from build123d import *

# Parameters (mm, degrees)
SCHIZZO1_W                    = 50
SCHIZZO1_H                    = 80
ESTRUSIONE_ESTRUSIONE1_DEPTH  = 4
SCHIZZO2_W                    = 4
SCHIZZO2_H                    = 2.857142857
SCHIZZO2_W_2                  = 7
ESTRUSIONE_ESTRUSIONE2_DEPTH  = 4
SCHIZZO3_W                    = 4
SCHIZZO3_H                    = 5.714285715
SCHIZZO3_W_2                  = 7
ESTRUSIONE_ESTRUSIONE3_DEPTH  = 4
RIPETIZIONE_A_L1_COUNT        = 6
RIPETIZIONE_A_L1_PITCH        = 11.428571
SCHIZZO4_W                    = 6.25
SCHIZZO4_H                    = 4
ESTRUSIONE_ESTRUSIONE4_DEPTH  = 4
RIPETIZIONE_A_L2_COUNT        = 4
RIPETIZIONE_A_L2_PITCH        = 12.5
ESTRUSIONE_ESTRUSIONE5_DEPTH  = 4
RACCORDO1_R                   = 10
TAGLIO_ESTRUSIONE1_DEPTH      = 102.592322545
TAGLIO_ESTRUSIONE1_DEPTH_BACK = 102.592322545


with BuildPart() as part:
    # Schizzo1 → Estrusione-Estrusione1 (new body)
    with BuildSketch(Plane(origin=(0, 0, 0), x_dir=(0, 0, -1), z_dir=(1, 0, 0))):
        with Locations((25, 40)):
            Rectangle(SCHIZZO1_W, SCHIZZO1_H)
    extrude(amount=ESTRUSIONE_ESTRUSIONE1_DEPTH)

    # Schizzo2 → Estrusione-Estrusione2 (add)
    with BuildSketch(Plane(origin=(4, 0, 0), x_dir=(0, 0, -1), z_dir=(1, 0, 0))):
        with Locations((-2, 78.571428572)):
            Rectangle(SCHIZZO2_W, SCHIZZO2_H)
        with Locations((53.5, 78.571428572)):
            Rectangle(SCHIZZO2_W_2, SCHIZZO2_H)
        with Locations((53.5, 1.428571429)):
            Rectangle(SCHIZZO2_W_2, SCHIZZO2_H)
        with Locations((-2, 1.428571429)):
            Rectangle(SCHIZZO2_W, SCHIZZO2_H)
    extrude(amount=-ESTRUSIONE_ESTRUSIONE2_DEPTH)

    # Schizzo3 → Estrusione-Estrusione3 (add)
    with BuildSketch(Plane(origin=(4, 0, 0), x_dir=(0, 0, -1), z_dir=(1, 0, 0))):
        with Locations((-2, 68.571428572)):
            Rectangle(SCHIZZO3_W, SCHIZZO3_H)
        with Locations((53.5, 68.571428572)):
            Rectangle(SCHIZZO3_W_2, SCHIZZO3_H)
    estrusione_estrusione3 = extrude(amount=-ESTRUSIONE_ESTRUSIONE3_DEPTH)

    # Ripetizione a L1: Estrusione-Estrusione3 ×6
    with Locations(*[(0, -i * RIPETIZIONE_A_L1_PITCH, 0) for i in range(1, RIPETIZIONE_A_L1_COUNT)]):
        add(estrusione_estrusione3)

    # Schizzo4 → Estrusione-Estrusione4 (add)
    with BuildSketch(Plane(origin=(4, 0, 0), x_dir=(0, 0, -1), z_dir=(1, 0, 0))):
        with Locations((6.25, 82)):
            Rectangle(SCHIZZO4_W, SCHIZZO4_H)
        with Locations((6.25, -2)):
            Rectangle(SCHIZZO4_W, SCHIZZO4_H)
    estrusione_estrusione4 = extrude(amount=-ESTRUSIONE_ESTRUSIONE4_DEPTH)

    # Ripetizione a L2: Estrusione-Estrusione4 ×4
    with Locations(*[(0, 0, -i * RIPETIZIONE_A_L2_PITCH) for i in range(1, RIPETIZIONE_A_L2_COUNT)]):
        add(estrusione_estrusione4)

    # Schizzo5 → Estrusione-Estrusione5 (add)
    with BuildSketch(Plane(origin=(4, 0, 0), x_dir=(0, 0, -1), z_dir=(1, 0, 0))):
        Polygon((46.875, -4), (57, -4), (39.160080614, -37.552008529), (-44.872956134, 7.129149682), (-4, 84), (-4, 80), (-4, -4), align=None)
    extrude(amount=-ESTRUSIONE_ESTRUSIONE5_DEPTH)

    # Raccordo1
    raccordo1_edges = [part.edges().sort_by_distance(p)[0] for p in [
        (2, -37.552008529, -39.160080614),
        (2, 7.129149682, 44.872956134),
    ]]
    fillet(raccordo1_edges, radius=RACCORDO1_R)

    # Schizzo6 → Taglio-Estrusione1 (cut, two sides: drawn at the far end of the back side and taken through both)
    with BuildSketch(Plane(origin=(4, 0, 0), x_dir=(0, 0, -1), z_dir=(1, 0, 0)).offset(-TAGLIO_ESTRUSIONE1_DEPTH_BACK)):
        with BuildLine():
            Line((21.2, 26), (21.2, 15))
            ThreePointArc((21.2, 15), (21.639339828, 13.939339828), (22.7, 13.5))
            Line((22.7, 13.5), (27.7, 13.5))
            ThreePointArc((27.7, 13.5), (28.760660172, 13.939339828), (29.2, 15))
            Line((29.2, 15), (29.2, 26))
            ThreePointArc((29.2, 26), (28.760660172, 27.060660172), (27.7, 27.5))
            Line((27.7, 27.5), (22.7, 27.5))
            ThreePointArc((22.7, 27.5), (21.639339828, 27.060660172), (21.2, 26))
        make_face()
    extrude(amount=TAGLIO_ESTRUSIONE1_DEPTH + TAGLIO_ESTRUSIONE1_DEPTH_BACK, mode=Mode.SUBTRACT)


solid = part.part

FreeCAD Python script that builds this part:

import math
import FreeCAD as App
import Part
import Sketcher

V = App.Vector
Q = App.Units.Quantity


def edges_at(feature, points):
    """Names of the edges that pass closest to the given points."""
    edges = feature.Shape.Edges
    near = lambda p: min(range(len(edges)), key=lambda i: edges[i].distToShape(Part.Vertex(*p))[0])
    return sorted({f"Edge{near(p) + 1}" for p in points})


def add_polygon(sketch, points):
    """Adds a closed chain of lines whose ends are joined by coincident constraints."""
    first, n = sketch.GeometryCount, len(points)
    for a, b in zip(points, points[1:] + points[:1]):
        sketch.addGeometry(Part.LineSegment(App.Vector(*a, 0), App.Vector(*b, 0)), False)
    for i in range(n):
        sketch.addConstraint(Sketcher.Constraint("Coincident", first + i, 2, first + (i + 1) % n, 1))

doc = App.newDocument("Part")
body = doc.addObject("PartDesign::Body", "Body")

# Sketch on YZ plane
sketch1 = body.newObject("Sketcher::SketchObject", "Sketch")
sketch1.AttachmentSupport = (doc.getObject("YZ_Plane"), [""])
sketch1.MapMode = "FlatFace"
add_polygon(sketch1, [(80, 0), (0, 0), (0, -50), (80, -50)])  # lines 0-3
sketch1.addConstraint(Sketcher.Constraint("Horizontal", 0))
sketch1.addConstraint(Sketcher.Constraint("Vertical", 1))
sketch1.addConstraint(Sketcher.Constraint("Horizontal", 2))
sketch1.addConstraint(Sketcher.Constraint("Vertical", 3))
sketch1.addConstraint(Sketcher.Constraint("Coincident", 0, 2, -1, 1))
sketch1.addConstraint(Sketcher.Constraint("DistanceX", 0, 2, 0, 1, 80.0))
sketch1.addConstraint(Sketcher.Constraint("DistanceY", 1, 2, 1, 1, 50.0))
pad1 = body.newObject("PartDesign::Pad", "Pad")
pad1.Profile = sketch1
pad1.Length = 4

# Sketch on YZ plane
sketch2 = body.newObject("Sketcher::SketchObject", "Sketch001")
sketch2.AttachmentSupport = (doc.getObject("YZ_Plane"), [""])
sketch2.MapMode = "FlatFace"
sketch2.AttachmentOffset = App.Placement(V(0, 0, 4), App.Rotation())
add_polygon(sketch2, [(80, 4), (77.142857, 4), (77.142857, 0), (80, 0)])  # lines 0-3
add_polygon(sketch2, [(80, -50), (77.142857, -50), (77.142857, -57), (80, -57)])  # lines 4-7
add_polygon(sketch2, [(2.857143, -50), (0, -50), (0, -57), (2.857143, -57)])  # lines 8-11
add_polygon(sketch2, [(2.857143, 4), (0, 4), (0, 0), (2.857143, 0)])  # lines 12-15
sketch2.addConstraint(Sketcher.Constraint("Horizontal", 0))
sketch2.addConstraint(Sketcher.Constraint("Vertical", 1))
sketch2.addConstraint(Sketcher.Constraint("Horizontal", 2))
sketch2.addConstraint(Sketcher.Constraint("Vertical", 3))
sketch2.addConstraint(Sketcher.Constraint("Horizontal", 4))
sketch2.addConstraint(Sketcher.Constraint("Vertical", 5))
sketch2.addConstraint(Sketcher.Constraint("Horizontal", 6))
sketch2.addConstraint(Sketcher.Constraint("Vertical", 7))
sketch2.addConstraint(Sketcher.Constraint("Horizontal", 8))
sketch2.addConstraint(Sketcher.Constraint("Vertical", 9))
sketch2.addConstraint(Sketcher.Constraint("Horizontal", 10))
sketch2.addConstraint(Sketcher.Constraint("Vertical", 11))
sketch2.addConstraint(Sketcher.Constraint("Horizontal", 12))
sketch2.addConstraint(Sketcher.Constraint("Vertical", 13))
sketch2.addConstraint(Sketcher.Constraint("Horizontal", 14))
sketch2.addConstraint(Sketcher.Constraint("Vertical", 15))
sketch2.addConstraint(Sketcher.Constraint("Coincident", 13, 2, -1, 1))
sketch2.addConstraint(Sketcher.Constraint("PointOnObject", 1, 2, -1))
sketch2.addConstraint(Sketcher.Constraint("PointOnObject", 8, 2, -2))
sketch2.addConstraint(Sketcher.Constraint("Horizontal", 7, 2, 8, 2))
sketch2.addConstraint(Sketcher.Constraint("Horizontal", 6, 2, 9, 2))
sketch2.addConstraint(Sketcher.Constraint("Horizontal", 3, 2, 12, 2))
sketch2.addConstraint(Sketcher.Constraint("Vertical", 1, 2, 4, 2))
sketch2.addConstraint(Sketcher.Constraint("Vertical", 3, 2, 6, 2))
sketch2.addConstraint(Sketcher.Constraint("Vertical", 11, 2, 14, 2))
sketch2.addConstraint(Sketcher.Constraint("Equal", 6, 8))
sketch2.addConstraint(Sketcher.Constraint("DistanceY", 1, 2, 1, 1, 4.0))
sketch2.addConstraint(Sketcher.Constraint("DistanceY", 5, 2, 5, 1, 7.0))
sketch2.addConstraint(Sketcher.Constraint("DistanceX", -1, 1, 2, 2, 80.0))
sketch2.addConstraint(Sketcher.Constraint("DistanceY", 4, 2, -1, 1, 50.0))
sketch2.addConstraint(Sketcher.Constraint("DistanceX", 0, 2, 0, 1, 2.857143))
pad2 = body.newObject("PartDesign::Pad", "Pad001")
pad2.Profile = sketch2
pad2.Length = 4
pad2.Reversed = True

# Sketch on YZ plane
sketch3 = body.newObject("Sketcher::SketchObject", "Sketch002")
sketch3.AttachmentSupport = (doc.getObject("YZ_Plane"), [""])
sketch3.MapMode = "FlatFace"
sketch3.AttachmentOffset = App.Placement(V(0, 0, 4), App.Rotation())
add_polygon(sketch3, [(71.428571, 4), (65.714286, 4), (65.714286, 0), (71.428571, 0)])  # lines 0-3
add_polygon(sketch3, [(71.428571, -50), (65.714286, -50), (65.714286, -57), (71.428571, -57)])  # lines 4-7
sketch3.addConstraint(Sketcher.Constraint("Horizontal", 0))
sketch3.addConstraint(Sketcher.Constraint("Vertical", 1))
sketch3.addConstraint(Sketcher.Constraint("Horizontal", 2))
sketch3.addConstraint(Sketcher.Constraint("Vertical", 3))
sketch3.addConstraint(Sketcher.Constraint("Horizontal", 4))
sketch3.addConstraint(Sketcher.Constraint("Vertical", 5))
sketch3.addConstraint(Sketcher.Constraint("Horizontal", 6))
sketch3.addConstraint(Sketcher.Constraint("Vertical", 7))
sketch3.addConstraint(Sketcher.Constraint("PointOnObject", 1, 2, -1))
sketch3.addConstraint(Sketcher.Constraint("Vertical", 1, 2, 4, 2))
sketch3.addConstraint(Sketcher.Constraint("Vertical", 3, 2, 6, 2))
sketch3.addConstraint(Sketcher.Constraint("DistanceY", 1, 2, 1, 1, 4.0))
sketch3.addConstraint(Sketcher.Constraint("DistanceY", 5, 2, 5, 1, 7.0))
sketch3.addConstraint(Sketcher.Constraint("DistanceY", 4, 2, -1, 1, 50.0))
sketch3.addConstraint(Sketcher.Constraint("DistanceX", 0, 2, 0, 1, 5.714286))
sketch3.addConstraint(Sketcher.Constraint("DistanceX", -1, 1, 2, 2, 71.428571))
pad3 = body.newObject("PartDesign::Pad", "Pad002")
pad3.Profile = sketch3
pad3.Length = 4
pad3.Reversed = True
doc.recompute()

linearpattern = body.newObject("PartDesign::LinearPattern", "LinearPattern")
linearpattern.Originals = [pad3]
linearpattern.Direction = (doc.getObject("Y_Axis"), [""])
linearpattern.Mode = "offset"
linearpattern.Offset = 11.428571
linearpattern.Occurrences = 6
linearpattern.Reversed = True
body.Tip = linearpattern

# Sketch on YZ plane
sketch4 = body.newObject("Sketcher::SketchObject", "Sketch003")
sketch4.AttachmentSupport = (doc.getObject("YZ_Plane"), [""])
sketch4.MapMode = "FlatFace"
sketch4.AttachmentOffset = App.Placement(V(0, 0, 4), App.Rotation())
add_polygon(sketch4, [(84, -3.125), (80, -3.125), (80, -9.375), (84, -9.375)])  # lines 0-3
add_polygon(sketch4, [(0, -3.125), (-4, -3.125), (-4, -9.375), (0, -9.375)])  # lines 4-7
sketch4.addConstraint(Sketcher.Constraint("Horizontal", 0))
sketch4.addConstraint(Sketcher.Constraint("Vertical", 1))
sketch4.addConstraint(Sketcher.Constraint("Horizontal", 2))
sketch4.addConstraint(Sketcher.Constraint("Vertical", 3))
sketch4.addConstraint(Sketcher.Constraint("Horizontal", 4))
sketch4.addConstraint(Sketcher.Constraint("Vertical", 5))
sketch4.addConstraint(Sketcher.Constraint("Horizontal", 6))
sketch4.addConstraint(Sketcher.Constraint("Vertical", 7))
sketch4.addConstraint(Sketcher.Constraint("PointOnObject", 6, 2, -2))
sketch4.addConstraint(Sketcher.Constraint("Horizontal", 3, 2, 4, 2))
sketch4.addConstraint(Sketcher.Constraint("Horizontal", 2, 2, 5, 2))
sketch4.addConstraint(Sketcher.Constraint("Equal", 2, 4))
sketch4.addConstraint(Sketcher.Constraint("DistanceX", 0, 2, 0, 1, 4.0))
sketch4.addConstraint(Sketcher.Constraint("DistanceX", -1, 1, 0, 2, 80.0))
sketch4.addConstraint(Sketcher.Constraint("DistanceY", 1, 2, 1, 1, 6.25))
sketch4.addConstraint(Sketcher.Constraint("DistanceY", 0, 2, -1, 1, 3.125))
pad4 = body.newObject("PartDesign::Pad", "Pad003")
pad4.Profile = sketch4
pad4.Length = 4
pad4.Reversed = True
doc.recompute()

linearpattern2 = body.newObject("PartDesign::LinearPattern", "LinearPattern001")
linearpattern2.Originals = [pad4]
linearpattern2.Direction = (doc.getObject("Z_Axis"), [""])
linearpattern2.Mode = "offset"
linearpattern2.Offset = 12.5
linearpattern2.Occurrences = 4
linearpattern2.Reversed = True
body.Tip = linearpattern2

# Sketch on YZ plane
sketch5 = body.newObject("Sketcher::SketchObject", "Sketch004")
sketch5.AttachmentSupport = (doc.getObject("YZ_Plane"), [""])
sketch5.MapMode = "FlatFace"
sketch5.AttachmentOffset = App.Placement(V(0, 0, 4), App.Rotation())
add_polygon(sketch5, [(-4, -57), (-4, 4), (84, 4), (7.12915, 44.872956), (-37.552009, -39.160081)])  # lines 0-4
sketch5.addConstraint(Sketcher.Constraint("Vertical", 0))
sketch5.addConstraint(Sketcher.Constraint("Horizontal", 1))
sketch5.addConstraint(Sketcher.Constraint("Perpendicular", 2, 3))
sketch5.addConstraint(Sketcher.Constraint("Perpendicular", 3, 4))
sketch5.addConstraint(Sketcher.Constraint("DistanceX", 1, 1, 1, 2, 88.0))
sketch5.addConstraint(Sketcher.Constraint("DistanceY", 0, 1, 0, 2, 61.0))
sketch5.addConstraint(Sketcher.Constraint("Angle", 2, Q("152 deg")))
sketch5.addConstraint(Sketcher.Constraint("Distance", 4, 38.0))
sketch5.addConstraint(Sketcher.Constraint("DistanceX", 0, 2, -1, 1, 4.0))
sketch5.addConstraint(Sketcher.Constraint("DistanceY", -1, 1, 0, 2, 4.0))
pad5 = body.newObject("PartDesign::Pad", "Pad004")
pad5.Profile = sketch5
pad5.Length = 4
pad5.Reversed = True
doc.recompute()

fillet = body.newObject("PartDesign::Fillet", "Fillet")
fillet.Base = (pad5, edges_at(pad5, [(2, -37.552, -39.16), (2, 7.129, 44.873)]))
fillet.Radius = 10

# Sketch on YZ plane
sketch6 = body.newObject("Sketcher::SketchObject", "Sketch005")
sketch6.AttachmentSupport = (doc.getObject("YZ_Plane"), [""])
sketch6.MapMode = "FlatFace"
sketch6.AttachmentOffset = App.Placement(V(0, 0, 4), App.Rotation())
sketch6.addGeometry(Part.LineSegment(V(26, -21.2, 0), V(15, -21.2, 0)), False)
sketch6.addGeometry(Part.ArcOfCircle(Part.Circle(V(15, -22.7, 0), V(0, 0, 1), 1.5), math.radians(90), math.radians(180)), False)
sketch6.addGeometry(Part.LineSegment(V(13.5, -22.7, 0), V(13.5, -27.7, 0)), False)
sketch6.addGeometry(Part.ArcOfCircle(Part.Circle(V(15, -27.7, 0), V(0, 0, 1), 1.5), math.radians(180), math.radians(270)), False)
sketch6.addGeometry(Part.LineSegment(V(15, -29.2, 0), V(26, -29.2, 0)), False)
sketch6.addGeometry(Part.ArcOfCircle(Part.Circle(V(26, -27.7, 0), V(0, 0, 1), 1.5), math.radians(-90), math.radians(0)), False)
sketch6.addGeometry(Part.LineSegment(V(27.5, -27.7, 0), V(27.5, -22.7, 0)), False)
sketch6.addGeometry(Part.ArcOfCircle(Part.Circle(V(26, -22.7, 0), V(0, 0, 1), 1.5), math.radians(0), math.radians(90)), False)
sketch6.addConstraint(Sketcher.Constraint("Tangent", 0, 2, 1, 1))
sketch6.addConstraint(Sketcher.Constraint("Tangent", 1, 2, 2, 1))
sketch6.addConstraint(Sketcher.Constraint("Tangent", 2, 2, 3, 1))
sketch6.addConstraint(Sketcher.Constraint("Tangent", 3, 2, 4, 1))
sketch6.addConstraint(Sketcher.Constraint("Tangent", 4, 2, 5, 1))
sketch6.addConstraint(Sketcher.Constraint("Tangent", 5, 2, 6, 1))
sketch6.addConstraint(Sketcher.Constraint("Tangent", 6, 2, 7, 1))
sketch6.addConstraint(Sketcher.Constraint("Tangent", 7, 2, 0, 1))
sketch6.addConstraint(Sketcher.Constraint("Horizontal", 0))
sketch6.addConstraint(Sketcher.Constraint("Vertical", 2))
sketch6.addConstraint(Sketcher.Constraint("Horizontal", 4))
sketch6.addConstraint(Sketcher.Constraint("Vertical", 6))
sketch6.addConstraint(Sketcher.Constraint("Equal", 1, 3))
sketch6.addConstraint(Sketcher.Constraint("Equal", 3, 5))
sketch6.addConstraint(Sketcher.Constraint("Equal", 5, 7))
sketch6.addConstraint(Sketcher.Constraint("Radius", 1, 1.5))
sketch6.addConstraint(Sketcher.Constraint("DistanceX", 0, 2, 0, 1, 11.0))
sketch6.addConstraint(Sketcher.Constraint("DistanceY", 2, 2, 2, 1, 5.0))
sketch6.addConstraint(Sketcher.Constraint("DistanceX", -1, 1, 1, 3, 15.0))
sketch6.addConstraint(Sketcher.Constraint("DistanceY", 1, 3, -1, 1, 22.7))
pocket1 = body.newObject("PartDesign::Pocket", "Pocket")
pocket1.Profile = sketch6
pocket1.Type = "ThroughAll"
pocket1.Midplane = True

doc.recompute()
